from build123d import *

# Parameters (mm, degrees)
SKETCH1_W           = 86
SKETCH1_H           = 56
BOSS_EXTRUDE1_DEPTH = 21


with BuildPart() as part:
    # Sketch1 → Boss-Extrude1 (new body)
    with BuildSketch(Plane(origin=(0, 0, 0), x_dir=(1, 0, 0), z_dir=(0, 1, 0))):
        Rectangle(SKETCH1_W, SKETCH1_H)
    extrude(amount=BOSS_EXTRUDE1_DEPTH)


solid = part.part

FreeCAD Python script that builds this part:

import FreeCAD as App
import Part
import Sketcher
from FreeCAD import Vector


def add_polygon(sketch, points):
    """Adds a closed chain of lines whose ends are joined by coincident constraints."""
    first, n = sketch.GeometryCount, len(points)
    for a, b in zip(points, points[1:] + points[:1]):
        sketch.addGeometry(Part.LineSegment(App.Vector(*a, 0), App.Vector(*b, 0)), False)
    for i in range(n):
        sketch.addConstraint(Sketcher.Constraint("Coincident", first + i, 2, first + (i + 1) % n, 1))

doc = App.newDocument("Part")
body = doc.addObject("PartDesign::Body", "Body")

sketch1 = doc.addObject("Sketcher::SketchObject", "Sketch")
body.addObject(sketch1)
sketch1.AttachmentSupport = (doc.XZ_Plane, [""])
sketch1.MapMode = "FlatFace"
add_polygon(sketch1, [(-43, -28), (-43, 28), (43, 28), (43, -28)])
sketch1.addConstraint([
    Sketcher.Constraint("Vertical", 0),
    Sketcher.Constraint("Horizontal", 1),
    Sketcher.Constraint("Vertical", 2),
    Sketcher.Constraint("Horizontal", 3),
    Sketcher.Constraint("Symmetric", 0, 2, 2, 2, -1, 1),
    Sketcher.Constraint("DistanceX", 1, 1, 1, 2, 86.0),
    Sketcher.Constraint("DistanceY", 0, 1, 0, 2, 56.0),
])
pad1 = doc.addObject("PartDesign::Pad", "Pad")
body.addObject(pad1)
pad1.Profile = sketch1
pad1.Length = 21
pad1.Reversed = True

doc.recompute()
